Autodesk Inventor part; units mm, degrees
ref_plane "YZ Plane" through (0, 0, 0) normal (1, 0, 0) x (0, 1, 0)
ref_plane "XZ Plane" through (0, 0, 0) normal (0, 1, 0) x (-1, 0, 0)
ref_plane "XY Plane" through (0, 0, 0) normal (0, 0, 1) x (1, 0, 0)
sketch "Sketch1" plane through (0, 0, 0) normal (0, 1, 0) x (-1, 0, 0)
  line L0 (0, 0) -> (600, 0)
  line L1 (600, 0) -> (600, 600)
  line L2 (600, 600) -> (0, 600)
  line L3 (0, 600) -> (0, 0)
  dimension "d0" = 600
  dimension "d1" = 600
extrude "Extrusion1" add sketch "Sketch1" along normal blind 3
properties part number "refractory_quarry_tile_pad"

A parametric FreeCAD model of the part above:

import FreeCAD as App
import Part
import Sketcher

doc = App.newDocument("Part")
body = doc.addObject("PartDesign::Body", "Body")

# Sketch on XZ plane
sketch1 = doc.addObject("Sketcher::SketchObject", "Sketch")
body.addObject(sketch1)
sketch1.AttachmentSupport = (doc.XZ_Plane, [""])
sketch1.MapMode = "FlatFace"
sketch1.addGeometry([
    Part.LineSegment(App.Vector(0, 600, 0), App.Vector(0, 0, 0)),
    Part.LineSegment(App.Vector(0, 0, 0), App.Vector(-600, 0, 0)),
    Part.LineSegment(App.Vector(-600, 0, 0), App.Vector(-600, 600, 0)),
    Part.LineSegment(App.Vector(-600, 600, 0), App.Vector(0, 600, 0)),
], False)
sketch1.addConstraint([
    Sketcher.Constraint("Coincident", 0, 2, 1, 1),
    Sketcher.Constraint("Coincident", 1, 2, 2, 1),
    Sketcher.Constraint("Coincident", 2, 2, 3, 1),
    Sketcher.Constraint("Coincident", 3, 2, 0, 1),
    Sketcher.Constraint("Vertical", 0),
    Sketcher.Constraint("Horizontal", 1),
    Sketcher.Constraint("Vertical", 2),
    Sketcher.Constraint("Horizontal", 3),
    Sketcher.Constraint("Coincident", 0, 2, -1, 1),
    Sketcher.Constraint("Equal", 3, 0),
    Sketcher.Constraint("DistanceX", 1, 2, 1, 1, 600.0),
])
pad1 = doc.addObject("PartDesign::Pad", "Pad")
body.addObject(pad1)
pad1.Profile = sketch1
pad1.Length = 3
pad1.Reversed = True

doc.recompute()
